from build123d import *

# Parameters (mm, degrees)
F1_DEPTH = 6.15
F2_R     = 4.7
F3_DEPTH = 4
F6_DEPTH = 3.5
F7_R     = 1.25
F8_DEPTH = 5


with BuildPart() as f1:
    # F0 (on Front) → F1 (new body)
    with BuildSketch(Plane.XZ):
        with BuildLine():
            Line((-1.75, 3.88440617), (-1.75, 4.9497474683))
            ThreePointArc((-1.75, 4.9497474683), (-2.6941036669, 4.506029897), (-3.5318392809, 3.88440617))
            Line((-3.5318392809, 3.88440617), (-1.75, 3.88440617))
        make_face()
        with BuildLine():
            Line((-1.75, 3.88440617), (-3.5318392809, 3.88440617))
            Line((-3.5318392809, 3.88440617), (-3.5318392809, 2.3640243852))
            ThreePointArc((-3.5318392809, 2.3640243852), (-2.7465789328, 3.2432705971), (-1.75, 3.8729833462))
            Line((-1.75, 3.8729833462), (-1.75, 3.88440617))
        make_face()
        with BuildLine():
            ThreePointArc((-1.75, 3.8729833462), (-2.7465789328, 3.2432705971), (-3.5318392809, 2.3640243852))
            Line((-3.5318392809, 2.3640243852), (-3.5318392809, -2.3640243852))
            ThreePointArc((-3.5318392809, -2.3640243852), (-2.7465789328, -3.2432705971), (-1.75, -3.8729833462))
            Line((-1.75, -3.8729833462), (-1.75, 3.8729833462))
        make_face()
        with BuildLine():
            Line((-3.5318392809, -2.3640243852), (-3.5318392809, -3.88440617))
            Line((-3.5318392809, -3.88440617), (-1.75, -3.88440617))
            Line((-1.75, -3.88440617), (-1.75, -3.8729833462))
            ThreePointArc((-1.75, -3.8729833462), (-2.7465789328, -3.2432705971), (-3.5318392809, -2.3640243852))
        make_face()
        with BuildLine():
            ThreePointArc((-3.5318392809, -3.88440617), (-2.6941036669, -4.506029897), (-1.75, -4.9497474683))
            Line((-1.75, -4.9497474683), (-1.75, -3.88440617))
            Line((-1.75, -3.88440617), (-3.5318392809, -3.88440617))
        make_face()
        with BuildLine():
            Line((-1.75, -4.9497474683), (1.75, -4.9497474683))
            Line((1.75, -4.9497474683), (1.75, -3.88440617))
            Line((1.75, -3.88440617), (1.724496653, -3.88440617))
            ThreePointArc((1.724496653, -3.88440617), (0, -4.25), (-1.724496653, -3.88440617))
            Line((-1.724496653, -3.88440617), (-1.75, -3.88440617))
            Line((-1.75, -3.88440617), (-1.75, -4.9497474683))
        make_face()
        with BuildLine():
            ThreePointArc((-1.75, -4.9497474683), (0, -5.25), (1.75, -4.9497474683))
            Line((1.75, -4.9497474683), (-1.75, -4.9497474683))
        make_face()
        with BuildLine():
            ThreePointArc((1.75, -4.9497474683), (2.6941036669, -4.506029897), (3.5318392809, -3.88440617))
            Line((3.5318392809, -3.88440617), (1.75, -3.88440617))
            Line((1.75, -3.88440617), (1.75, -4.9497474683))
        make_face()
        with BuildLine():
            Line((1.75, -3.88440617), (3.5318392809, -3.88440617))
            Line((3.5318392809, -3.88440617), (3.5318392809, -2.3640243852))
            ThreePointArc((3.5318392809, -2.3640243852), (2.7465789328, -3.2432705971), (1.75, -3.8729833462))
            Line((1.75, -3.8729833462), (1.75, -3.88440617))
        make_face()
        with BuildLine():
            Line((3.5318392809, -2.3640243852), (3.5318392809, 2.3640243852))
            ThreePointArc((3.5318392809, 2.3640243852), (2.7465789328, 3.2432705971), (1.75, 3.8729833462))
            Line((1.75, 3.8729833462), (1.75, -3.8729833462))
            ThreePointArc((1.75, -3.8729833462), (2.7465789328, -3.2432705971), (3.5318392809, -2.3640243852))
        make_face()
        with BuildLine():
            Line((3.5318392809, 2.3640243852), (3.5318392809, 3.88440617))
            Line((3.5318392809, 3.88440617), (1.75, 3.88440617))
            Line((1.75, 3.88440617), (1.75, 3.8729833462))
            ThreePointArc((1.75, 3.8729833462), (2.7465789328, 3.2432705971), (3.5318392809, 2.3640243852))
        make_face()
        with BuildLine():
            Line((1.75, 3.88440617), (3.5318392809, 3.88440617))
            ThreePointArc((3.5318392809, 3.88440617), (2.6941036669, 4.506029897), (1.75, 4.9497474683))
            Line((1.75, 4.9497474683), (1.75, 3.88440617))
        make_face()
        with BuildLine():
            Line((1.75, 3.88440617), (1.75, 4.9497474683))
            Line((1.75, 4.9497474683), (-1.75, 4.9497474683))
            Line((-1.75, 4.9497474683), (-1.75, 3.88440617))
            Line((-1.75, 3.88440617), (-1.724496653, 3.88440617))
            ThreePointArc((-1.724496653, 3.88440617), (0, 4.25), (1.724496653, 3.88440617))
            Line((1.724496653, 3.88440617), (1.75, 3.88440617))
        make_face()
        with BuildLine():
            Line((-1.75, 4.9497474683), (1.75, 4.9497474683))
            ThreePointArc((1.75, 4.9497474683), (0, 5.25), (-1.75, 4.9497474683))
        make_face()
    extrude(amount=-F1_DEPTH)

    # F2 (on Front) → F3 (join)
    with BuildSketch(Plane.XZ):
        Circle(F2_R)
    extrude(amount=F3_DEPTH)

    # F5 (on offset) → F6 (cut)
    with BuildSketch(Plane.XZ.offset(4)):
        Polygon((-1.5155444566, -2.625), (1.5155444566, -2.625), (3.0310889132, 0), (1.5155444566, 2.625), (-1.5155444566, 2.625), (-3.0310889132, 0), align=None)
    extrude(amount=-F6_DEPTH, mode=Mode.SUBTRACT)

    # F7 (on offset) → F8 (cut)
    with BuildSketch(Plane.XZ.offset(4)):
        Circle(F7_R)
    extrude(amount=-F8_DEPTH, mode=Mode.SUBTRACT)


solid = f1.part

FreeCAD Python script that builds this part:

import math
import FreeCAD as App
import Part
import Sketcher

V = App.Vector
Q = App.Units.Quantity


def add_polygon(sketch, points):
    """Adds a closed chain of lines whose ends are joined by coincident constraints."""
    first, n = sketch.GeometryCount, len(points)
    for a, b in zip(points, points[1:] + points[:1]):
        sketch.addGeometry(Part.LineSegment(App.Vector(*a, 0), App.Vector(*b, 0)), False)
    for i in range(n):
        sketch.addConstraint(Sketcher.Constraint("Coincident", first + i, 2, first + (i + 1) % n, 1))

doc = App.newDocument("Part")
body = doc.addObject("PartDesign::Body", "Body")

sketch1 = body.newObject("Sketcher::SketchObject", "Sketch")
sketch1.AttachmentSupport = (doc.getObject("XZ_Plane"), [""])
sketch1.MapMode = "FlatFace"
sketch1.addGeometry(Part.ArcOfCircle(Part.Circle(V(0, 0, 0), V(0, 0, 1), 5.25), math.radians(109), math.radians(132)), False)
sketch1.addGeometry(Part.LineSegment(V(-3.532, 3.884, 0), V(-3.532, -3.884, 0)), False)
sketch1.addGeometry(Part.ArcOfCircle(Part.Circle(V(0, 0, 0), V(0, 0, 1), 5.25), math.radians(-132), math.radians(-109)), False)
sketch1.addGeometry(Part.ArcOfCircle(Part.Circle(V(0, 0, 0), V(0, 0, 1), 5.25), math.radians(-109), math.radians(-71)), False)
sketch1.addGeometry(Part.ArcOfCircle(Part.Circle(V(0, 0, 0), V(0, 0, 1), 5.25), math.radians(-71), math.radians(-48)), False)
sketch1.addGeometry(Part.LineSegment(V(3.532, -3.884, 0), V(3.532, 3.884, 0)), False)
sketch1.addGeometry(Part.ArcOfCircle(Part.Circle(V(0, 0, 0), V(0, 0, 1), 5.25), math.radians(48), math.radians(71)), False)
sketch1.addGeometry(Part.ArcOfCircle(Part.Circle(V(0, 0, 0), V(0, 0, 1), 5.25), math.radians(71), math.radians(109)), False)
sketch1.addGeometry(Part.LineSegment(V(1.75, 3.884, 0), V(1.75, -3.884, 0)), False)
sketch1.addGeometry(Part.LineSegment(V(1.75, -3.884, 0), V(1.724, -3.884, 0)), False)
sketch1.addGeometry(Part.ArcOfCircle(Part.Circle(V(0, 0, 0), V(0, 0, 1), 4.25), math.radians(-114), math.radians(-66)), False)
sketch1.addGeometry(Part.LineSegment(V(-1.724, -3.884, 0), V(-1.75, -3.884, 0)), False)
sketch1.addGeometry(Part.LineSegment(V(-1.75, -3.884, 0), V(-1.75, 3.884, 0)), False)
sketch1.addGeometry(Part.LineSegment(V(-1.75, 3.884, 0), V(-1.724, 3.884, 0)), False)
sketch1.addGeometry(Part.ArcOfCircle(Part.Circle(V(0, 0, 0), V(0, 0, 1), 4.25), math.radians(66), math.radians(114)), False)
sketch1.addGeometry(Part.LineSegment(V(1.724, 3.884, 0), V(1.75, 3.884, 0)), False)
sketch1.addConstraint(Sketcher.Constraint("Coincident", 0, 2, 1, 1))
sketch1.addConstraint(Sketcher.Constraint("Coincident", 1, 2, 2, 1))
sketch1.addConstraint(Sketcher.Constraint("Tangent", 2, 2, 3, 1))
sketch1.addConstraint(Sketcher.Constraint("Tangent", 3, 2, 4, 1))
sketch1.addConstraint(Sketcher.Constraint("Coincident", 4, 2, 5, 1))
sketch1.addConstraint(Sketcher.Constraint("Coincident", 5, 2, 6, 1))
sketch1.addConstraint(Sketcher.Constraint("Tangent", 6, 2, 7, 1))
sketch1.addConstraint(Sketcher.Constraint("Tangent", 7, 2, 0, 1))
sketch1.addConstraint(Sketcher.Constraint("Coincident", 8, 2, 9, 1))
sketch1.addConstraint(Sketcher.Constraint("Coincident", 9, 2, 10, 2))
sketch1.addConstraint(Sketcher.Constraint("Coincident", 10, 1, 11, 1))
sketch1.addConstraint(Sketcher.Constraint("Coincident", 11, 2, 12, 1))
sketch1.addConstraint(Sketcher.Constraint("Coincident", 12, 2, 13, 1))
sketch1.addConstraint(Sketcher.Constraint("Coincident", 13, 2, 14, 2))
sketch1.addConstraint(Sketcher.Constraint("Coincident", 14, 1, 15, 1))
sketch1.addConstraint(Sketcher.Constraint("Coincident", 15, 2, 8, 1))
sketch1.addConstraint(Sketcher.Constraint("Vertical", 1))
sketch1.addConstraint(Sketcher.Constraint("Vertical", 5))
sketch1.addConstraint(Sketcher.Constraint("Vertical", 8))
sketch1.addConstraint(Sketcher.Constraint("Horizontal", 9))
sketch1.addConstraint(Sketcher.Constraint("Horizontal", 11))
sketch1.addConstraint(Sketcher.Constraint("Vertical", 12))
sketch1.addConstraint(Sketcher.Constraint("Horizontal", 13))
sketch1.addConstraint(Sketcher.Constraint("Horizontal", 15))
sketch1.addConstraint(Sketcher.Constraint("Coincident", 0, 3, -1, 1))
sketch1.addConstraint(Sketcher.Constraint("Coincident", 2, 3, -1, 1))
sketch1.addConstraint(Sketcher.Constraint("Coincident", 4, 3, -1, 1))
sketch1.addConstraint(Sketcher.Constraint("Coincident", 6, 3, -1, 1))
sketch1.addConstraint(Sketcher.Constraint("Coincident", 10, 3, -1, 1))
sketch1.addConstraint(Sketcher.Constraint("Coincident", 14, 3, -1, 1))
sketch1.addConstraint(Sketcher.Constraint("Equal", 0, 2))
sketch1.addConstraint(Sketcher.Constraint("Equal", 10, 14))
sketch1.addConstraint(Sketcher.Constraint("Symmetric", 8, 2, 12, 2, -1, 1))
sketch1.addConstraint(Sketcher.Constraint("Horizontal", 2, 2, 3, 2))
sketch1.addConstraint(Sketcher.Constraint("Horizontal", 1, 2, 4, 2))
sketch1.addConstraint(Sketcher.Constraint("Horizontal", 6, 2, 7, 2))
sketch1.addConstraint(Sketcher.Constraint("Horizontal", 4, 2, 8, 2))
sketch1.addConstraint(Sketcher.Constraint("Horizontal", 9, 2, 10, 1))
sketch1.addConstraint(Sketcher.Constraint("Horizontal", 13, 2, 14, 1))
sketch1.addConstraint(Sketcher.Constraint("Vertical", 3, 2, 6, 2))
sketch1.addConstraint(Sketcher.Constraint("Vertical", 6, 2, 8, 2))
sketch1.addConstraint(Sketcher.Constraint("Radius", 0, Q("5.25 mm")))
sketch1.addConstraint(Sketcher.Constraint("Radius", 10, Q("4.25 mm")))
sketch1.addConstraint(Sketcher.Constraint("DistanceX", 2, 2, 3, 2, Q("3.5 mm")))
sketch1.addConstraint(Sketcher.Constraint("DistanceX", 9, 2, 9, 1, Q("0.025503 mm")))
pad1 = body.newObject("PartDesign::Pad", "Pad")
pad1.Profile = sketch1
pad1.Length = 6.15
pad1.Reversed = True

sketch2 = body.newObject("Sketcher::SketchObject", "Sketch001")
sketch2.AttachmentSupport = (doc.getObject("XZ_Plane"), [""])
sketch2.MapMode = "FlatFace"
sketch2.addGeometry(Part.Circle(V(0, 0, 0), V(0, 0, 1), 4.7), False)
sketch2.addConstraint(Sketcher.Constraint("Coincident", 0, 3, -1, 1))
sketch2.addConstraint(Sketcher.Constraint("Diameter", 0, Q("9.4 mm")))
pad2 = body.newObject("PartDesign::Pad", "Pad001")
pad2.Profile = sketch2
pad2.Length = 4

sketch3 = body.newObject("Sketcher::SketchObject", "Sketch002")
sketch3.AttachmentSupport = (doc.getObject("XZ_Plane"), [""])
sketch3.MapMode = "FlatFace"
sketch3.AttachmentOffset = App.Placement(V(0, 0, 4), App.Rotation())
add_polygon(sketch3, [(-1.5, -2.6), (1.5, -2.6), (3, 0), (1.5, 2.6), (-1.5, 2.6), (-3, 0)])
sketch3.addConstraint(Sketcher.Constraint("Horizontal", 0))
sketch3.addConstraint(Sketcher.Constraint("Horizontal", 3))
sketch3.addConstraint(Sketcher.Constraint("Symmetric", 0, 2, 3, 2, -1, 1))
sketch3.addConstraint(Sketcher.Constraint("Symmetric", 1, 2, 4, 2, -1, 1))
sketch3.addConstraint(Sketcher.Constraint("PointOnObject", 1, 2, -1))
sketch3.addConstraint(Sketcher.Constraint("Parallel", 2, 5))
sketch3.addConstraint(Sketcher.Constraint("Vertical", 0, 2, 2, 2))
sketch3.addConstraint(Sketcher.Constraint("Angle", 1, Q("60 deg")))
sketch3.addConstraint(Sketcher.Constraint("DistanceY", 0, 2, 2, 2, Q("5.25 mm")))
sketch3.addConstraint(Sketcher.Constraint("DistanceX", 0, 1, 0, 2, Q("3.031089 mm")))
pocket1 = body.newObject("PartDesign::Pocket", "Pocket")
pocket1.Profile = sketch3
pocket1.Length = 3.5

sketch4 = body.newObject("Sketcher::SketchObject", "Sketch003")
sketch4.AttachmentSupport = (doc.getObject("XZ_Plane"), [""])
sketch4.MapMode = "FlatFace"
sketch4.AttachmentOffset = App.Placement(V(0, 0, 4), App.Rotation())
sketch4.addGeometry(Part.Circle(V(0, 0, 0), V(0, 0, 1), 1.2), False)
sketch4.addConstraint(Sketcher.Constraint("Coincident", 0, 3, -1, 1))
sketch4.addConstraint(Sketcher.Constraint("Diameter", 0, Q("2.5 mm")))
pocket2 = body.newObject("PartDesign::Pocket", "Pocket001")
pocket2.Profile = sketch4
pocket2.Length = 5

doc.recompute()
